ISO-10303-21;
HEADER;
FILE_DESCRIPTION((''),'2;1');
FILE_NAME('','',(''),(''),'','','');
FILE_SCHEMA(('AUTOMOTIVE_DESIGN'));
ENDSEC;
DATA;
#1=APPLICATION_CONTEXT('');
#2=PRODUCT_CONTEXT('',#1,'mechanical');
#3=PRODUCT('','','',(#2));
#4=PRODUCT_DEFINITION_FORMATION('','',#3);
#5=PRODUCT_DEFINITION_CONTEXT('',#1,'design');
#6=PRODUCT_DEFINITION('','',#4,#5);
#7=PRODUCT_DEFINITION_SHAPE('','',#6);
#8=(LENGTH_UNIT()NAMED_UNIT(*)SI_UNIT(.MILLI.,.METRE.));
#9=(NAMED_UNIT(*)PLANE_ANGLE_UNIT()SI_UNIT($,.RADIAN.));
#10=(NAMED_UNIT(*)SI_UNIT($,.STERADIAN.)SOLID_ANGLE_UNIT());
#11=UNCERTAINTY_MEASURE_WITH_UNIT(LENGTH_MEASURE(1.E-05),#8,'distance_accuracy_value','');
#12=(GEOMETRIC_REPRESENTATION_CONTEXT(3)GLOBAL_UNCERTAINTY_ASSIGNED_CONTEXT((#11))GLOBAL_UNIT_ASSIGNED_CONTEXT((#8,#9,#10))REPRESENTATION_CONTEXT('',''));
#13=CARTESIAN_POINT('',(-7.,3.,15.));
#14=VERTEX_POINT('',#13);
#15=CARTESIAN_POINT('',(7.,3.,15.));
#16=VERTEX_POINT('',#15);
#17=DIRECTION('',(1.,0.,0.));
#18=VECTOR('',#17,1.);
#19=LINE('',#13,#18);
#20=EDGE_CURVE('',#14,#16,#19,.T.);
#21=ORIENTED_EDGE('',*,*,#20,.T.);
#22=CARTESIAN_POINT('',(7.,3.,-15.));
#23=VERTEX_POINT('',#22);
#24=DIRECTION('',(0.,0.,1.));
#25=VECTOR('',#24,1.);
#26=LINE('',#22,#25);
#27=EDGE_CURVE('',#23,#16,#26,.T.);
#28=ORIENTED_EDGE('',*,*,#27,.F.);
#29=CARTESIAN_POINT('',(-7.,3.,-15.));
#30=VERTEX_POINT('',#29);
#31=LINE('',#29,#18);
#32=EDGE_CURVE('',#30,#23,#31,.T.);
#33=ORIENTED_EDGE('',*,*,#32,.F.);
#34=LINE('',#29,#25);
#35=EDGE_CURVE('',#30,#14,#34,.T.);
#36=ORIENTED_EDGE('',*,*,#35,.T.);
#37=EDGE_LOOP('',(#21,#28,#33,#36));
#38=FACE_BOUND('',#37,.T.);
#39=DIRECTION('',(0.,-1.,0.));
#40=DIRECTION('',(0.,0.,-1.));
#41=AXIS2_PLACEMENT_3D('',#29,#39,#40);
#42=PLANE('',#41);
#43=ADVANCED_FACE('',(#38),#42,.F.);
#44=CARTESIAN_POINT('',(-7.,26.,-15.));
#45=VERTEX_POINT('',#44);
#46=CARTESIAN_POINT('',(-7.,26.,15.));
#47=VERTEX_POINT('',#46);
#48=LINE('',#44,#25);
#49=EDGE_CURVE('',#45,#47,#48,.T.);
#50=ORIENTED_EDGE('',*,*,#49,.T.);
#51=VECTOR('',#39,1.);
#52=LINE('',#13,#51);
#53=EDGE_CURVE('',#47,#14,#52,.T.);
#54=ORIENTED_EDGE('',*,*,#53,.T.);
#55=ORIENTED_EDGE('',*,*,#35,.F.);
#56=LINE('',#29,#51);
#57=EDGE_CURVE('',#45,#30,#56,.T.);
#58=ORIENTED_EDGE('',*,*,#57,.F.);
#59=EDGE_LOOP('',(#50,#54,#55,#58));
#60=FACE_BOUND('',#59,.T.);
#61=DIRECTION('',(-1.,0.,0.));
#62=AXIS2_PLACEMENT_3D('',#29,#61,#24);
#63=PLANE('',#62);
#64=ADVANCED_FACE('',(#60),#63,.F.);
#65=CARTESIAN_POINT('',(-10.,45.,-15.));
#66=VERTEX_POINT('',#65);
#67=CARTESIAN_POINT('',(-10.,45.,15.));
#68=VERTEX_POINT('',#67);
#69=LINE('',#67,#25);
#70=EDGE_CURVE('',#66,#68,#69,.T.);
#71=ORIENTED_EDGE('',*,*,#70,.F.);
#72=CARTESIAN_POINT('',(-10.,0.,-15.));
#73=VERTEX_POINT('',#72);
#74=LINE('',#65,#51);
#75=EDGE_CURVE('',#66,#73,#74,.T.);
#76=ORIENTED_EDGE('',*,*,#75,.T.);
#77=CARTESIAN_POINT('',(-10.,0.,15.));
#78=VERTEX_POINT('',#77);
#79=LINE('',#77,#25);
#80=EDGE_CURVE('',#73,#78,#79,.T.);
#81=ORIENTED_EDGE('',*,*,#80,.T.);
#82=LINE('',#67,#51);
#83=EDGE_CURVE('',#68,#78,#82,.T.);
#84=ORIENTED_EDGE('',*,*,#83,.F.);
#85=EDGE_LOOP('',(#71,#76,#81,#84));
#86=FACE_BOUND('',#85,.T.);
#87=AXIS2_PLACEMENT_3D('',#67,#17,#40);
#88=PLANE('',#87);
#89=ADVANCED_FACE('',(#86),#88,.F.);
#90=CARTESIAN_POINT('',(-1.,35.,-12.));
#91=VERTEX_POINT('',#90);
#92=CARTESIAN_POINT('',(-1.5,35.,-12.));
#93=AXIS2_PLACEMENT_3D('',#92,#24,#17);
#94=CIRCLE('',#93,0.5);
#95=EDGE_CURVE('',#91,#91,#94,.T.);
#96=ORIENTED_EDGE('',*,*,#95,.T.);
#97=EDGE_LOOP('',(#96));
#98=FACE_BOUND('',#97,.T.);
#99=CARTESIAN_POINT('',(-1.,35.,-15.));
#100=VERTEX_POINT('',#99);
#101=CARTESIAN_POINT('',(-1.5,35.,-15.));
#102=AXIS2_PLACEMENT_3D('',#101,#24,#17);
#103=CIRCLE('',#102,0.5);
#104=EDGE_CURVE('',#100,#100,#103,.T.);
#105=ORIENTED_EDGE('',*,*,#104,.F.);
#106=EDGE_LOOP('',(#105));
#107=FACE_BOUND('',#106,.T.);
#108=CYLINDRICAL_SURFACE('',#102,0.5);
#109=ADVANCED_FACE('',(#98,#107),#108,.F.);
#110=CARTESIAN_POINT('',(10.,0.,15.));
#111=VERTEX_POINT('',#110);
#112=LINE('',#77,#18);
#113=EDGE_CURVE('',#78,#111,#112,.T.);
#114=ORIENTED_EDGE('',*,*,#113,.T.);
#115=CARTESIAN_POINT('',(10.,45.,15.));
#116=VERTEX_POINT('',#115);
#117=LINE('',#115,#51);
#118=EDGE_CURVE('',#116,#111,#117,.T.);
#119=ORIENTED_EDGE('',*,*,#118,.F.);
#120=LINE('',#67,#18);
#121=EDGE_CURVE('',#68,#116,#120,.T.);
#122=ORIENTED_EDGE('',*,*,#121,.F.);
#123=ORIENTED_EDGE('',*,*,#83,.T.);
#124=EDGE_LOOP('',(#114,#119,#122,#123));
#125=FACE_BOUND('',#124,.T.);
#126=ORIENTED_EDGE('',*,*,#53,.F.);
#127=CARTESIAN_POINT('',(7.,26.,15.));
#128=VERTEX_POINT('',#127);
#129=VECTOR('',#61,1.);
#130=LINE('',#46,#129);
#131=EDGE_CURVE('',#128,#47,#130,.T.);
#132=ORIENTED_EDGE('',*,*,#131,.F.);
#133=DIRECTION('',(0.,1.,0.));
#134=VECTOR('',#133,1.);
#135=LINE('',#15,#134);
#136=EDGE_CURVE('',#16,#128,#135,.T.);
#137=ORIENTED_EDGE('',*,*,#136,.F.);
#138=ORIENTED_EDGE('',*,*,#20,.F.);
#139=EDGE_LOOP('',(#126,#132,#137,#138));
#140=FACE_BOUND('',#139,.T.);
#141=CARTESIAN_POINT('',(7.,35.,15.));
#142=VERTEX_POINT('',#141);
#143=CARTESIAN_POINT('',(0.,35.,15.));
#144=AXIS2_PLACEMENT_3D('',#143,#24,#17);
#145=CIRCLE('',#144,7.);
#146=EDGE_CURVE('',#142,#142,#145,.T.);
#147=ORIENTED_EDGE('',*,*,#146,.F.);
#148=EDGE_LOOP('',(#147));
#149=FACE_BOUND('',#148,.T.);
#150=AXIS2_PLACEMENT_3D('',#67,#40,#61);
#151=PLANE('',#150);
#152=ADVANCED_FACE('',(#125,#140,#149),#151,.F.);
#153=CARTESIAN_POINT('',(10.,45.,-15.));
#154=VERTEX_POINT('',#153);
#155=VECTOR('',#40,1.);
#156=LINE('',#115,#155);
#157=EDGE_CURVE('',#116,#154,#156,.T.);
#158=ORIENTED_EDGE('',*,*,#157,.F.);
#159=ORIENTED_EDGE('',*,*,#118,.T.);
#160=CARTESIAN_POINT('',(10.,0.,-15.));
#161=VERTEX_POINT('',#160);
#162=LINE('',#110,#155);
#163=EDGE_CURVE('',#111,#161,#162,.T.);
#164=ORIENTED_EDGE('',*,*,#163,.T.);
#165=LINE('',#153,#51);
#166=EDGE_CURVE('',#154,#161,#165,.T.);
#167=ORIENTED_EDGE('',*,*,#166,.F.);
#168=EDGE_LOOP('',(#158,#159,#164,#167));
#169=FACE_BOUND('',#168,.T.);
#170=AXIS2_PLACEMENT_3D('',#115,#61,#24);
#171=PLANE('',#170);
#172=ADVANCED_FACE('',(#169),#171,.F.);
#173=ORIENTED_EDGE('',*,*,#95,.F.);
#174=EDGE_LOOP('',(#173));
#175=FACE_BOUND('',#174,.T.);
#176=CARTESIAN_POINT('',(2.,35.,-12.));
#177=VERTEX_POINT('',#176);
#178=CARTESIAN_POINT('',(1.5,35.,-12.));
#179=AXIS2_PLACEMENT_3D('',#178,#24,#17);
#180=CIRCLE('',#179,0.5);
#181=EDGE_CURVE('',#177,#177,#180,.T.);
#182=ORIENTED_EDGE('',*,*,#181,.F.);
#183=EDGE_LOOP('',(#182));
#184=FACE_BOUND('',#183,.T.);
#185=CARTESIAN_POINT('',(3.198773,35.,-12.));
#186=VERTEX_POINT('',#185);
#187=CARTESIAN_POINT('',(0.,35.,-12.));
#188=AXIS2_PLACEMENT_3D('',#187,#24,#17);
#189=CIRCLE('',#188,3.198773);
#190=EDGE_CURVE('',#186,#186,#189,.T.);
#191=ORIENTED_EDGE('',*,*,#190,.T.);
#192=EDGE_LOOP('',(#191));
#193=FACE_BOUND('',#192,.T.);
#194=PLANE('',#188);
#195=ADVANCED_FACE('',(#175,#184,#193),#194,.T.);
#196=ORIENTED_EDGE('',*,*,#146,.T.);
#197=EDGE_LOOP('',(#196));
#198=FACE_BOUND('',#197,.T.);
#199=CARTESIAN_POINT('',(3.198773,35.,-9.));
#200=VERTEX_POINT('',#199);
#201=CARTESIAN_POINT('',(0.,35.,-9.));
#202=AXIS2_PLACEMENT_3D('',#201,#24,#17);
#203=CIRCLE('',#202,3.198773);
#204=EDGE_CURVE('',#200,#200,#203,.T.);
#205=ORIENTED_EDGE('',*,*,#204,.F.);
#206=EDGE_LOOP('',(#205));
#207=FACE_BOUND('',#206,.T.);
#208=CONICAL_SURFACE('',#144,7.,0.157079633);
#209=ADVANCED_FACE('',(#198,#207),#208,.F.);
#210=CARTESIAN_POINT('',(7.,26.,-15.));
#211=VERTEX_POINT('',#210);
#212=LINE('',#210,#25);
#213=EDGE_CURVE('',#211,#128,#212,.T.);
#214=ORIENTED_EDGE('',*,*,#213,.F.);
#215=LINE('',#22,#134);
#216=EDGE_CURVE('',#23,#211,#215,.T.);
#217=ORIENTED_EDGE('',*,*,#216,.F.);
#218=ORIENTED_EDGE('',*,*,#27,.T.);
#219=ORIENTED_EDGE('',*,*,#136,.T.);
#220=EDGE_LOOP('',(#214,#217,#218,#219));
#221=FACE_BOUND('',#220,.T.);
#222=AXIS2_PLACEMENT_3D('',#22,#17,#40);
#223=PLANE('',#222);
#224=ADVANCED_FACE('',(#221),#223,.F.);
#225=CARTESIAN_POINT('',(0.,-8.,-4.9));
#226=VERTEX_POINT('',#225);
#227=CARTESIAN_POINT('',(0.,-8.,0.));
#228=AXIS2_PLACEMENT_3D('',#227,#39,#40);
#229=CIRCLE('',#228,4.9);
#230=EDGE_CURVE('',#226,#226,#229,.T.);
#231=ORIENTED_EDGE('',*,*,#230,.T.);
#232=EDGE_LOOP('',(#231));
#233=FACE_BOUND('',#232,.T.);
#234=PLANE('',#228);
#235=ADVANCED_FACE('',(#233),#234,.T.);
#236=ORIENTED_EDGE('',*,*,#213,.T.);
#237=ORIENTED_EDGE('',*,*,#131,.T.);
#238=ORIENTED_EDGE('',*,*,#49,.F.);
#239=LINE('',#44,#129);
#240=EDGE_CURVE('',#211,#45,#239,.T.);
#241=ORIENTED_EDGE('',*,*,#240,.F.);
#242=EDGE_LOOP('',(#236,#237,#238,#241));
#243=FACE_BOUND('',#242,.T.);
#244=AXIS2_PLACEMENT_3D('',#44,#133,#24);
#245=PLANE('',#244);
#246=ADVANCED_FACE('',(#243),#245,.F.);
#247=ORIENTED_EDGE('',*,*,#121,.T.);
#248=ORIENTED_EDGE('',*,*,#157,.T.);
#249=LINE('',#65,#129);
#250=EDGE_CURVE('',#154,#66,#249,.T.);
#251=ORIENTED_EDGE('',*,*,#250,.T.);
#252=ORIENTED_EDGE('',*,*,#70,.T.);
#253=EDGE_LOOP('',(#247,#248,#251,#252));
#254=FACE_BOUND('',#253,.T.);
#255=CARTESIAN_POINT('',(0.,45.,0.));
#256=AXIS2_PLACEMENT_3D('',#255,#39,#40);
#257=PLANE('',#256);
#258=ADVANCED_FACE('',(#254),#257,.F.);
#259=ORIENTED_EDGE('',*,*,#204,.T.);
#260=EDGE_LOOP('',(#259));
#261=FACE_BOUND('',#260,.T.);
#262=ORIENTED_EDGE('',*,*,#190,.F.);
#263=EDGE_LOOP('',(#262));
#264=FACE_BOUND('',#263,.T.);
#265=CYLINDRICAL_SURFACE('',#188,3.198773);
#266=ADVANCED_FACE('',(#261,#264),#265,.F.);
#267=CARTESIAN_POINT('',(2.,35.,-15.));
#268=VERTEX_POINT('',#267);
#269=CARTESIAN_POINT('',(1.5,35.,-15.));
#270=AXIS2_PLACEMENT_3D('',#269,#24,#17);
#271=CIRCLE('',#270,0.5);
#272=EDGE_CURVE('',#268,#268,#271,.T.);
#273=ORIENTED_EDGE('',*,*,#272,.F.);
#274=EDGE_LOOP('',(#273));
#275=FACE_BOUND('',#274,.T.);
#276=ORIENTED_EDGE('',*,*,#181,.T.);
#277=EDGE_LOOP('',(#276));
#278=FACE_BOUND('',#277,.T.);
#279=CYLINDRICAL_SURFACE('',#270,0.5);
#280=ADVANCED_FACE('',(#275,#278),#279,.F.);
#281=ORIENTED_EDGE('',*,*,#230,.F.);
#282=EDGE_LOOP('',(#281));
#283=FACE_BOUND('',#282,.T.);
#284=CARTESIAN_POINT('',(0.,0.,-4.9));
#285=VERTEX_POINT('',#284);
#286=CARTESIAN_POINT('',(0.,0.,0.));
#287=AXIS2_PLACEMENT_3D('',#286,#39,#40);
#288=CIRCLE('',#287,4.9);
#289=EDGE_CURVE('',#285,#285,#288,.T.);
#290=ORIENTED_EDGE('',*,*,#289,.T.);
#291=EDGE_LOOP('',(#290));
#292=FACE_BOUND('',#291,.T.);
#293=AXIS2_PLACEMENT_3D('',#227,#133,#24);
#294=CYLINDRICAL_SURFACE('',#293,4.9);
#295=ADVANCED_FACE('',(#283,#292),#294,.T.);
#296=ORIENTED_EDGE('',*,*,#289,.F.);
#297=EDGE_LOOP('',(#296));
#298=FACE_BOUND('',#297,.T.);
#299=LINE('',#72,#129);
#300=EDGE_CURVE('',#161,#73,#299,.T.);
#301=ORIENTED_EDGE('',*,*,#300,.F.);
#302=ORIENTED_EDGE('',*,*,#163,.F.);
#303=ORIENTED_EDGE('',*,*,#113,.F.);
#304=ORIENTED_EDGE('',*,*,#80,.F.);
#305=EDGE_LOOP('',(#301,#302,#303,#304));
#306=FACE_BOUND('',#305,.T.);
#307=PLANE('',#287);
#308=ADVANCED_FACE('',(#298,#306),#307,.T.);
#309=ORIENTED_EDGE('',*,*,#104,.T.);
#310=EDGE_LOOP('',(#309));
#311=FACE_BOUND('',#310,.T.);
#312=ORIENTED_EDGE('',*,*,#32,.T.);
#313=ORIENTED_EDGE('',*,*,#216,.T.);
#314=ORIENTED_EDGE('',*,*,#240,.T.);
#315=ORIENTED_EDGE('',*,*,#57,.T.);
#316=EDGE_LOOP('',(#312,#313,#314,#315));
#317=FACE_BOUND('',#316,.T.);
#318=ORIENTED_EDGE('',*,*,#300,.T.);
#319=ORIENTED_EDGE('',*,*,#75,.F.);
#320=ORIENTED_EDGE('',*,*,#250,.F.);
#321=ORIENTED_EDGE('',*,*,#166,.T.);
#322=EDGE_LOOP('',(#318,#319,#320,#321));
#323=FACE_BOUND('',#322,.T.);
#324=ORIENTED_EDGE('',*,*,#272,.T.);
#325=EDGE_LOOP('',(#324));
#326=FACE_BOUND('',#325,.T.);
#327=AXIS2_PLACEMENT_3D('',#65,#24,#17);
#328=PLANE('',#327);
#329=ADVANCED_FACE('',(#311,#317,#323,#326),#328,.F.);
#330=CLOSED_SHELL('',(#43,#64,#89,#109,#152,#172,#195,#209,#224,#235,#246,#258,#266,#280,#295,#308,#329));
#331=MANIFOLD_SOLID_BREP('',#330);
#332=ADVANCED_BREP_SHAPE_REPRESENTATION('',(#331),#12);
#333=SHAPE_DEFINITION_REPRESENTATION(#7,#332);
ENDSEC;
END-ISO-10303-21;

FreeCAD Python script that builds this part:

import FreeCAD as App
import Part
import Sketcher
Q = App.Units.Quantity


def faces_at(feature, points):
    """Names of the faces that lie closest to the given points."""
    faces = feature.Shape.Faces
    near = lambda p: min(range(len(faces)), key=lambda i: faces[i].distToShape(Part.Vertex(*p))[0])
    return sorted({f"Face{near(p) + 1}" for p in points})

doc = App.newDocument("Part")
body = doc.addObject("PartDesign::Body", "Body")

sketch1 = doc.addObject("Sketcher::SketchObject", "Sketch")
body.addObject(sketch1)
sketch1.AttachmentSupport = (doc.XZ_Plane, [""])
sketch1.MapMode = "FlatFace"
sketch1.addGeometry([
    Part.LineSegment(App.Vector(-10, -15, 0), App.Vector(-10, 15, 0)),
    Part.LineSegment(App.Vector(-10, 15, 0), App.Vector(10, 15, 0)),
    Part.LineSegment(App.Vector(10, 15, 0), App.Vector(10, -15, 0)),
    Part.LineSegment(App.Vector(10, -15, 0), App.Vector(-10, -15, 0)),
], False)
sketch1.addConstraint([
    Sketcher.Constraint("Coincident", 0, 2, 1, 1),
    Sketcher.Constraint("Coincident", 1, 2, 2, 1),
    Sketcher.Constraint("Coincident", 2, 2, 3, 1),
    Sketcher.Constraint("Coincident", 3, 2, 0, 1),
    Sketcher.Constraint("Vertical", 0),
    Sketcher.Constraint("Horizontal", 1),
    Sketcher.Constraint("Vertical", 2),
    Sketcher.Constraint("Horizontal", 3),
    Sketcher.Constraint("Symmetric", 0, 2, 2, 2, -1, 1),
    Sketcher.Constraint("DistanceX", 1, 1, 1, 2, Q("20 mm")),
    Sketcher.Constraint("DistanceY", 0, 1, 0, 2, Q("30 mm")),
])
pad1 = doc.addObject("PartDesign::Pad", "Pad")
body.addObject(pad1)
pad1.Profile = sketch1
pad1.Length = 45
pad1.Reversed = True

sketch2 = doc.addObject("Sketcher::SketchObject", "Sketch001")
body.addObject(sketch2)
sketch2.AttachmentSupport = (doc.XZ_Plane, [""])
sketch2.MapMode = "FlatFace"
sketch2.addGeometry(Part.Circle(App.Vector(0, 0, 0), App.Vector(0, 0, 1), 4.9), False)
sketch2.addConstraint([
    Sketcher.Constraint("Coincident", 0, 3, -1, 1),
    Sketcher.Constraint("Diameter", 0, Q("9.8 mm")),
])
pad2 = doc.addObject("PartDesign::Pad", "Pad001")
body.addObject(pad2)
pad2.Profile = sketch2
pad2.Length = 8
body2 = doc.addObject("PartDesign::Body", "Body001")

sketch3 = doc.addObject("Sketcher::SketchObject", "Sketch002")
body2.addObject(sketch3)
sketch3.AttachmentSupport = (doc.getObject("XY_Plane001"), [""])
sketch3.MapMode = "FlatFace"
sketch3.AttachmentOffset = App.Placement(App.Vector(0, 0, 15), App.Rotation())
sketch3.addGeometry(Part.Circle(App.Vector(0, 35, 0), App.Vector(0, 0, 1), 7), False)
sketch3.addConstraint([
    Sketcher.Constraint("PointOnObject", 0, 3, -2),
    Sketcher.Constraint("Diameter", 0, Q("14 mm")),
    Sketcher.Constraint("DistanceY", -1, 1, 0, 3, Q("35 mm")),
])
pad3 = doc.addObject("PartDesign::Pad", "Pad002")
body2.addObject(pad3)
pad3.Profile = sketch3
pad3.Length = 24
pad3.Reversed = True
doc.recompute()

datumplane = doc.addObject("PartDesign::Plane", "DatumPlane")
body2.addObject(datumplane)
datumplane.AttachmentSupport = (doc.getObject("XY_Plane001"), [""])
datumplane.MapMode = "FlatFace"
datumplane.AttachmentOffset = App.Placement(App.Vector(0, 0, 15), App.Rotation())
draft = doc.addObject("PartDesign::Draft", "Draft")
body2.addObject(draft)
draft.Base = (pad3, faces_at(pad3, [(-7, 35, 3)]))
draft.NeutralPlane = (datumplane, [""])
draft.Angle = 9
draft.Reversed = True
doc.recompute()

boolean = doc.addObject("PartDesign::Boolean", "Boolean")
body.addObject(boolean)
boolean.Type = "Cut"
boolean.addObjects([body2])

sketch4 = doc.addObject("Sketcher::SketchObject", "Sketch003")
body.addObject(sketch4)
sketch4.AttachmentSupport = (doc.XY_Plane, [""])
sketch4.MapMode = "FlatFace"
sketch4.AttachmentOffset = App.Placement(App.Vector(0, 0, -9), App.Rotation())
sketch4.addGeometry(Part.Circle(App.Vector(0, 35, 0), App.Vector(0, 0, 1), 3.2), False)
sketch4.addConstraint([
    Sketcher.Constraint("PointOnObject", 0, 3, -2),
    Sketcher.Constraint("DistanceY", -1, 1, 0, 3, Q("35 mm")),
    Sketcher.Constraint("Diameter", 0, Q("6.397547 mm")),
])
pocket1 = doc.addObject("PartDesign::Pocket", "Pocket")
body.addObject(pocket1)
pocket1.Profile = sketch4
pocket1.Length = 3

sketch5 = doc.addObject("Sketcher::SketchObject", "Sketch004")
body.addObject(sketch5)
sketch5.AttachmentSupport = (doc.XY_Plane, [""])
sketch5.MapMode = "FlatFace"
sketch5.AttachmentOffset = App.Placement(App.Vector(0, 0, -12), App.Rotation())
sketch5.addGeometry([
    Part.Circle(App.Vector(-1.5, 35, 0), App.Vector(0, 0, 1), 0.5),
    Part.Circle(App.Vector(1.5, 35, 0), App.Vector(0, 0, 1), 0.5),
], False)
sketch5.addConstraint([
    Sketcher.Constraint("Equal", 0, 1),
    Sketcher.Constraint("Symmetric", 0, 3, 1, 3, -2),
    Sketcher.Constraint("Diameter", 0, Q("1 mm")),
    Sketcher.Constraint("DistanceY", -1, 1, 0, 3, Q("35 mm")),
    Sketcher.Constraint("DistanceX", 0, 3, 1, 3, Q("3 mm")),
])
pocket2 = doc.addObject("PartDesign::Pocket", "Pocket001")
body.addObject(pocket2)
pocket2.Profile = sketch5
pocket2.Length = 3

sketch6 = doc.addObject("Sketcher::SketchObject", "Sketch005")
body.addObject(sketch6)
sketch6.AttachmentSupport = (doc.XY_Plane, [""])
sketch6.MapMode = "FlatFace"
sketch6.AttachmentOffset = App.Placement(App.Vector(0, 0, 15), App.Rotation())
sketch6.addGeometry([
    Part.LineSegment(App.Vector(-7, 26, 0), App.Vector(-7, 3, 0)),
    Part.LineSegment(App.Vector(-7, 3, 0), App.Vector(7, 3, 0)),
    Part.LineSegment(App.Vector(7, 3, 0), App.Vector(7, 26, 0)),
    Part.LineSegment(App.Vector(7, 26, 0), App.Vector(-7, 26, 0)),
], False)
sketch6.addConstraint([
    Sketcher.Constraint("Coincident", 0, 2, 1, 1),
    Sketcher.Constraint("Coincident", 1, 2, 2, 1),
    Sketcher.Constraint("Coincident", 2, 2, 3, 1),
    Sketcher.Constraint("Coincident", 3, 2, 0, 1),
    Sketcher.Constraint("Vertical", 0),
    Sketcher.Constraint("Horizontal", 1),
    Sketcher.Constraint("Vertical", 2),
    Sketcher.Constraint("Horizontal", 3),
    Sketcher.Constraint("DistanceX", 1, 1, 1, 2, Q("14 mm")),
    Sketcher.Constraint("DistanceY", 0, 2, 0, 1, Q("23 mm")),
    Sketcher.Constraint("DistanceX", 0, 2, -1, 1, Q("7 mm")),
    Sketcher.Constraint("DistanceY", -1, 1, 0, 2, Q("3 mm")),
])
pocket3 = doc.addObject("PartDesign::Pocket", "Pocket002")
body.addObject(pocket3)
pocket3.Profile = sketch6
pocket3.Type = "ThroughAll"

doc.recompute()
